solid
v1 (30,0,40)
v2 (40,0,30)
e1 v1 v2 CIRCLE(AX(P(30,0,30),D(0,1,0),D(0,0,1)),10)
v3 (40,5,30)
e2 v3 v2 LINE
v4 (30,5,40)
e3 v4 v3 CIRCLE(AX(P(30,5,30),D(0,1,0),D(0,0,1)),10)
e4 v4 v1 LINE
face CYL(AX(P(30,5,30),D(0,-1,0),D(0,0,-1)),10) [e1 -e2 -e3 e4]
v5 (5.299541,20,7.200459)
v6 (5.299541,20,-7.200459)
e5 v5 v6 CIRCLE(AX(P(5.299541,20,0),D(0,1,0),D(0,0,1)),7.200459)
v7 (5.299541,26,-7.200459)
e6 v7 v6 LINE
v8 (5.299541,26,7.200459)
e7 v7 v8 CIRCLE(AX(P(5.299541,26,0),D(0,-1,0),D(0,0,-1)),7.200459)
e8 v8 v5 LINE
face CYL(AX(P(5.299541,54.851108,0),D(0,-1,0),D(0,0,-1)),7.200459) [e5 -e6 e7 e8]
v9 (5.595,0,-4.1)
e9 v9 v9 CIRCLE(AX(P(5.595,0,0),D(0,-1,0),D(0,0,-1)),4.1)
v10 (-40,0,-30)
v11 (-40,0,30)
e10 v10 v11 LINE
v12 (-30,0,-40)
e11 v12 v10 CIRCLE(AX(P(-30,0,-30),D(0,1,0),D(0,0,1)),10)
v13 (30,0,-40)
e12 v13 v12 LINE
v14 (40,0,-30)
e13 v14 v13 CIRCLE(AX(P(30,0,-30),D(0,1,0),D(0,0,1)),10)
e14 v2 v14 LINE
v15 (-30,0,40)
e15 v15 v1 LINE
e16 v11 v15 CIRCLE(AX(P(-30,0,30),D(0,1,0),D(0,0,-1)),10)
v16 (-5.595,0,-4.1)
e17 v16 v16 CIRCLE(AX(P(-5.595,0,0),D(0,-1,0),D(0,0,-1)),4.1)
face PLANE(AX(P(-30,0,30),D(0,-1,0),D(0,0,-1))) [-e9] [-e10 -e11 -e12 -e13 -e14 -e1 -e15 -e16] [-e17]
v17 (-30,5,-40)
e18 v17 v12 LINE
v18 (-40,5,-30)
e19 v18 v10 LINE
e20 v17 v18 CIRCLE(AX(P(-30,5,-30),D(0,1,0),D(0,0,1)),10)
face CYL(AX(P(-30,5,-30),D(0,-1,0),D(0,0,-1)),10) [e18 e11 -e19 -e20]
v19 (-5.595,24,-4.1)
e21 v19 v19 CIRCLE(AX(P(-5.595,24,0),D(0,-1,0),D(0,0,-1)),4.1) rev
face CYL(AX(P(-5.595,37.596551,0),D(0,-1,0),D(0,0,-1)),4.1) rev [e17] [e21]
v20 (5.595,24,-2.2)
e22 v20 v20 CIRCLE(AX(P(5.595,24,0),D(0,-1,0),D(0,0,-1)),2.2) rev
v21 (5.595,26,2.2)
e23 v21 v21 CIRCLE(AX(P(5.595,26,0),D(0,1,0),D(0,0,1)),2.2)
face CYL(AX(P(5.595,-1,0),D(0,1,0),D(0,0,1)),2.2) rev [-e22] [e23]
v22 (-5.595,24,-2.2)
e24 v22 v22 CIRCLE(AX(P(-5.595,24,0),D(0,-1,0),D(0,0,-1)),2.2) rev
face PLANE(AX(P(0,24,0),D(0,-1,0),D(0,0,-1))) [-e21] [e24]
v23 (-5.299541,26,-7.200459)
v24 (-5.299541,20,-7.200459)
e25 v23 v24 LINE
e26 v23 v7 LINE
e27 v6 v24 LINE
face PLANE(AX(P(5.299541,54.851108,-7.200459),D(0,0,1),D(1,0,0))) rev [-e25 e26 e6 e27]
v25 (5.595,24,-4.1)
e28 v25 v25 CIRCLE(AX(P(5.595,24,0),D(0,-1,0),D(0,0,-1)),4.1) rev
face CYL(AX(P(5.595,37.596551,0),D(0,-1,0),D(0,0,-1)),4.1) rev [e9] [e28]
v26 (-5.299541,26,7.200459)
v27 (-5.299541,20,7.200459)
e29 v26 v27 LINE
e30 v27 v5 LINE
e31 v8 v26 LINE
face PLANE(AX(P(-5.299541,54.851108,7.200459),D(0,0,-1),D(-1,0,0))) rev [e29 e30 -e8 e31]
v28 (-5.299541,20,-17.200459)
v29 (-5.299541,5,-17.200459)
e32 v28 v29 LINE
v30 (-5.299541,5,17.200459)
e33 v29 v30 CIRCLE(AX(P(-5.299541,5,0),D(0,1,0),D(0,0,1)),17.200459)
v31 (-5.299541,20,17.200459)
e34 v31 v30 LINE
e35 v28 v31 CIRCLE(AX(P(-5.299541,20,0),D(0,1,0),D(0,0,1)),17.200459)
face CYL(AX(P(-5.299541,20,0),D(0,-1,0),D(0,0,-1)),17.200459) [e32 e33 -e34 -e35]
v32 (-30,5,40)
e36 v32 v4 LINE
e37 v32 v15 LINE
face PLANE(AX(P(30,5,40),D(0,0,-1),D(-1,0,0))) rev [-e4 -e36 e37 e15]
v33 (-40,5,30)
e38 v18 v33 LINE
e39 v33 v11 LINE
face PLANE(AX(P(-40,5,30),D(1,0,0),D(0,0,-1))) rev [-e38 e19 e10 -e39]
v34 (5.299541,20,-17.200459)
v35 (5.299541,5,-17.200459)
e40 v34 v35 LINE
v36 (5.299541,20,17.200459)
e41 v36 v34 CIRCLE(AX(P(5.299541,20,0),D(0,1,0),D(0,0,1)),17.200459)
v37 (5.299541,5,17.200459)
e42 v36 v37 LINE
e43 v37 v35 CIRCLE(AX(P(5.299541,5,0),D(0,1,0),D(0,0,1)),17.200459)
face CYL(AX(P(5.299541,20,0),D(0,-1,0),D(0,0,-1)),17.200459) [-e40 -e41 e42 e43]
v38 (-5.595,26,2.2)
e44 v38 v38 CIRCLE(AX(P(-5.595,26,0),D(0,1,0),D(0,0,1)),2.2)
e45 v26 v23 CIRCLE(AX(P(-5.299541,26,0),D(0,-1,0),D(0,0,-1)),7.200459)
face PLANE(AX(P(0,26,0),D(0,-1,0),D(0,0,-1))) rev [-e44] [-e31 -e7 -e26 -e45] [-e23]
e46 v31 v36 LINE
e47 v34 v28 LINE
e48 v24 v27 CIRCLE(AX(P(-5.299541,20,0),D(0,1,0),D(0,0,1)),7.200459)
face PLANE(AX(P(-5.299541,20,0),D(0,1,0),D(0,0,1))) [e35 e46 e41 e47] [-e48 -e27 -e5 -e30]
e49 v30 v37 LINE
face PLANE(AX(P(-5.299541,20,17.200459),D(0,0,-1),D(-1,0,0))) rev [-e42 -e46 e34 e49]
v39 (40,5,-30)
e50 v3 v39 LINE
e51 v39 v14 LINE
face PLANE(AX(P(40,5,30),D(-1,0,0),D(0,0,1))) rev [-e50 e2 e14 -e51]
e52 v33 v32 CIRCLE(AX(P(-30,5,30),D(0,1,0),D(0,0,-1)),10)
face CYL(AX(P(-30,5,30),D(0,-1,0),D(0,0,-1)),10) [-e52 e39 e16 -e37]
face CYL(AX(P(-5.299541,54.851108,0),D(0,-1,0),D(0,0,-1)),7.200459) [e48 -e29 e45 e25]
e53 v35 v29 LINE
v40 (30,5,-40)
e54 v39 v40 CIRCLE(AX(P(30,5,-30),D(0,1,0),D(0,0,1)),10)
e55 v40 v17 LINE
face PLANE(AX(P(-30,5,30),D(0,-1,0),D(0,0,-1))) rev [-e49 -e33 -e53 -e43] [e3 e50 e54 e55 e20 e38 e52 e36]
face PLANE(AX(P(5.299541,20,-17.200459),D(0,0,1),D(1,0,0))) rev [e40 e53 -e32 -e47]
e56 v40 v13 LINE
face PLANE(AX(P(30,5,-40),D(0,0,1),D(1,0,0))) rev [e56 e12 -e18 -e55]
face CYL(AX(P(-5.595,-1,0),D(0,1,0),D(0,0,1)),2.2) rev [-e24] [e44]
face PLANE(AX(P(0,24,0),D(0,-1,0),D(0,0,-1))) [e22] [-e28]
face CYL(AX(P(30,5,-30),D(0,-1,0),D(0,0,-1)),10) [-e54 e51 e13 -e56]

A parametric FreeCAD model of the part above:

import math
import FreeCAD as App
import Part
import Sketcher
from FreeCAD import Vector
Q = App.Units.Quantity

doc = App.newDocument("Part")
body = doc.addObject("PartDesign::Body", "Body")

# Sketch on XZ plane
sketch1 = body.newObject("Sketcher::SketchObject", "Sketch")
sketch1.AttachmentSupport = (doc.getObject("XZ_Plane"), [""])
sketch1.MapMode = "FlatFace"
sketch1.addGeometry(Part.LineSegment(Vector(-30, 40, 0), Vector(30, 40, 0)), False)
sketch1.addGeometry(Part.ArcOfCircle(Part.Circle(Vector(30, 30, 0), Vector(0, 0, 1), 10), math.radians(0), math.radians(90)), False)
sketch1.addGeometry(Part.LineSegment(Vector(40, 30, 0), Vector(40, -30, 0)), False)
sketch1.addGeometry(Part.ArcOfCircle(Part.Circle(Vector(30, -30, 0), Vector(0, 0, 1), 10), math.radians(-90), math.radians(0)), False)
sketch1.addGeometry(Part.LineSegment(Vector(30, -40, 0), Vector(-30, -40, 0)), False)
sketch1.addGeometry(Part.ArcOfCircle(Part.Circle(Vector(-30, -30, 0), Vector(0, 0, 1), 10), math.radians(180), math.radians(270)), False)
sketch1.addGeometry(Part.LineSegment(Vector(-40, -30, 0), Vector(-40, 30, 0)), False)
sketch1.addGeometry(Part.ArcOfCircle(Part.Circle(Vector(-30, 30, 0), Vector(0, 0, 1), 10), math.radians(90), math.radians(180)), False)
sketch1.addConstraint(Sketcher.Constraint("Tangent", 0, 2, 1, 2))
sketch1.addConstraint(Sketcher.Constraint("Tangent", 1, 1, 2, 1))
sketch1.addConstraint(Sketcher.Constraint("Tangent", 2, 2, 3, 2))
sketch1.addConstraint(Sketcher.Constraint("Tangent", 3, 1, 4, 1))
sketch1.addConstraint(Sketcher.Constraint("Tangent", 4, 2, 5, 2))
sketch1.addConstraint(Sketcher.Constraint("Tangent", 5, 1, 6, 1))
sketch1.addConstraint(Sketcher.Constraint("Tangent", 6, 2, 7, 2))
sketch1.addConstraint(Sketcher.Constraint("Tangent", 7, 1, 0, 1))
sketch1.addConstraint(Sketcher.Constraint("Horizontal", 0))
sketch1.addConstraint(Sketcher.Constraint("Vertical", 2))
sketch1.addConstraint(Sketcher.Constraint("Horizontal", 4))
sketch1.addConstraint(Sketcher.Constraint("Vertical", 6))
sketch1.addConstraint(Sketcher.Constraint("Equal", 1, 3))
sketch1.addConstraint(Sketcher.Constraint("Equal", 3, 5))
sketch1.addConstraint(Sketcher.Constraint("Equal", 5, 7))
sketch1.addConstraint(Sketcher.Constraint("Symmetric", 1, 3, 5, 3, -1, 1))
sketch1.addConstraint(Sketcher.Constraint("Equal", 4, 2))
sketch1.addConstraint(Sketcher.Constraint("Radius", 1, Q("10 mm")))
sketch1.addConstraint(Sketcher.Constraint("DistanceX", 0, 1, 0, 2, Q("60 mm")))
pad1 = body.newObject("PartDesign::Pad", "Pad")
pad1.Profile = sketch1
pad1.Length = 5
pad1.Reversed = True

# Sketch on XZ plane
sketch2 = body.newObject("Sketcher::SketchObject", "Sketch001")
sketch2.AttachmentSupport = (doc.getObject("XZ_Plane"), [""])
sketch2.MapMode = "FlatFace"
sketch2.AttachmentOffset = App.Placement(Vector(0, 0, -5), App.Rotation())
sketch2.addGeometry(Part.LineSegment(Vector(-5.299541, 17.200459, 0), Vector(5.299541, 17.200459, 0)), False)
sketch2.addGeometry(Part.ArcOfCircle(Part.Circle(Vector(5.299541, 0, 0), Vector(0, 0, 1), 17.200459), math.radians(-90), math.radians(90)), False)
sketch2.addGeometry(Part.LineSegment(Vector(5.299541, -17.200459, 0), Vector(-5.299541, -17.200459, 0)), False)
sketch2.addGeometry(Part.ArcOfCircle(Part.Circle(Vector(-5.299541, 0, 0), Vector(0, 0, 1), 17.200459), math.radians(90), math.radians(270)), False)
sketch2.addConstraint(Sketcher.Constraint("Tangent", 0, 2, 1, 2))
sketch2.addConstraint(Sketcher.Constraint("Tangent", 1, 1, 2, 1))
sketch2.addConstraint(Sketcher.Constraint("Tangent", 2, 2, 3, 2))
sketch2.addConstraint(Sketcher.Constraint("Tangent", 3, 1, 0, 1))
sketch2.addConstraint(Sketcher.Constraint("Horizontal", 0))
sketch2.addConstraint(Sketcher.Constraint("Horizontal", 2))
sketch2.addConstraint(Sketcher.Constraint("Symmetric", 1, 3, 3, 3, -1, 1))
sketch2.addConstraint(Sketcher.Constraint("Radius", 1, Q("17.200459 mm")))
sketch2.addConstraint(Sketcher.Constraint("DistanceX", 0, 1, 0, 2, Q("10.599082 mm")))
pad2 = body.newObject("PartDesign::Pad", "Pad001")
pad2.Profile = sketch2
pad2.Length = 15
pad2.Reversed = True

# Sketch on XZ plane
sketch3 = body.newObject("Sketcher::SketchObject", "Sketch002")
sketch3.AttachmentSupport = (doc.getObject("XZ_Plane"), [""])
sketch3.MapMode = "FlatFace"
sketch3.AttachmentOffset = App.Placement(Vector(0, 0, -20), App.Rotation())
sketch3.addGeometry(Part.LineSegment(Vector(-5.299541, 7.200459, 0), Vector(5.299541, 7.200459, 0)), False)
sketch3.addGeometry(Part.ArcOfCircle(Part.Circle(Vector(5.299541, 0, 0), Vector(0, 0, 1), 7.200459), math.radians(-90), math.radians(90)), False)
sketch3.addGeometry(Part.LineSegment(Vector(5.299541, -7.200459, 0), Vector(-5.299541, -7.200459, 0)), False)
sketch3.addGeometry(Part.ArcOfCircle(Part.Circle(Vector(-5.299541, 0, 0), Vector(0, 0, 1), 7.200459), math.radians(90), math.radians(270)), False)
sketch3.addConstraint(Sketcher.Constraint("Tangent", 0, 2, 1, 2))
sketch3.addConstraint(Sketcher.Constraint("Tangent", 1, 1, 2, 1))
sketch3.addConstraint(Sketcher.Constraint("Tangent", 2, 2, 3, 2))
sketch3.addConstraint(Sketcher.Constraint("Tangent", 3, 1, 0, 1))
sketch3.addConstraint(Sketcher.Constraint("Horizontal", 0))
sketch3.addConstraint(Sketcher.Constraint("Horizontal", 2))
sketch3.addConstraint(Sketcher.Constraint("Symmetric", 1, 3, 3, 3, -1, 1))
sketch3.addConstraint(Sketcher.Constraint("Radius", 1, Q("7.200459 mm")))
sketch3.addConstraint(Sketcher.Constraint("DistanceX", 0, 1, 0, 2, Q("10.599082 mm")))
pad3 = body.newObject("PartDesign::Pad", "Pad002")
pad3.Profile = sketch3
pad3.Length = 6
pad3.Reversed = True

# Sketch on XZ plane
sketch4 = body.newObject("Sketcher::SketchObject", "Sketch003")
sketch4.AttachmentSupport = (doc.getObject("XZ_Plane"), [""])
sketch4.MapMode = "FlatFace"
sketch4.AttachmentOffset = App.Placement(Vector(0, 0, -26), App.Rotation())
sketch4.addGeometry(Part.Circle(Vector(-5.595, 0, 0), Vector(0, 0, 1), 2.2), False)
sketch4.addGeometry(Part.Circle(Vector(5.595, 0, 0), Vector(0, 0, 1), 2.2), False)
sketch4.addConstraint(Sketcher.Constraint("Equal", 0, 1))
sketch4.addConstraint(Sketcher.Constraint("Symmetric", 0, 3, 1, 3, -1, 1))
sketch4.addConstraint(Sketcher.Constraint("PointOnObject", 0, 3, -1))
sketch4.addConstraint(Sketcher.Constraint("Diameter", 0, Q("4.4 mm")))
sketch4.addConstraint(Sketcher.Constraint("DistanceX", 0, 3, 1, 3, Q("11.19 mm")))
pocket1 = body.newObject("PartDesign::Pocket", "Pocket")
pocket1.Profile = sketch4
pocket1.Length = 27
pocket1.Reversed = True

# Sketch on XZ plane
sketch5 = body.newObject("Sketcher::SketchObject", "Sketch004")
sketch5.AttachmentSupport = (doc.getObject("XZ_Plane"), [""])
sketch5.MapMode = "FlatFace"
sketch5.addGeometry(Part.Circle(Vector(5.595, 0, 0), Vector(0, 0, 1), 4.1), False)
sketch5.addGeometry(Part.Circle(Vector(-5.595, 0, 0), Vector(0, 0, 1), 4.1), False)
sketch5.addConstraint(Sketcher.Constraint("Equal", 0, 1))
sketch5.addConstraint(Sketcher.Constraint("Symmetric", 0, 3, 1, 3, -1, 1))
sketch5.addConstraint(Sketcher.Constraint("PointOnObject", 0, 3, -1))
sketch5.addConstraint(Sketcher.Constraint("Diameter", 0, Q("8.2 mm")))
sketch5.addConstraint(Sketcher.Constraint("DistanceX", 1, 3, 0, 3, Q("11.19 mm")))
pocket2 = body.newObject("PartDesign::Pocket", "Pocket001")
pocket2.Profile = sketch5
pocket2.Length = 24

doc.recompute()
